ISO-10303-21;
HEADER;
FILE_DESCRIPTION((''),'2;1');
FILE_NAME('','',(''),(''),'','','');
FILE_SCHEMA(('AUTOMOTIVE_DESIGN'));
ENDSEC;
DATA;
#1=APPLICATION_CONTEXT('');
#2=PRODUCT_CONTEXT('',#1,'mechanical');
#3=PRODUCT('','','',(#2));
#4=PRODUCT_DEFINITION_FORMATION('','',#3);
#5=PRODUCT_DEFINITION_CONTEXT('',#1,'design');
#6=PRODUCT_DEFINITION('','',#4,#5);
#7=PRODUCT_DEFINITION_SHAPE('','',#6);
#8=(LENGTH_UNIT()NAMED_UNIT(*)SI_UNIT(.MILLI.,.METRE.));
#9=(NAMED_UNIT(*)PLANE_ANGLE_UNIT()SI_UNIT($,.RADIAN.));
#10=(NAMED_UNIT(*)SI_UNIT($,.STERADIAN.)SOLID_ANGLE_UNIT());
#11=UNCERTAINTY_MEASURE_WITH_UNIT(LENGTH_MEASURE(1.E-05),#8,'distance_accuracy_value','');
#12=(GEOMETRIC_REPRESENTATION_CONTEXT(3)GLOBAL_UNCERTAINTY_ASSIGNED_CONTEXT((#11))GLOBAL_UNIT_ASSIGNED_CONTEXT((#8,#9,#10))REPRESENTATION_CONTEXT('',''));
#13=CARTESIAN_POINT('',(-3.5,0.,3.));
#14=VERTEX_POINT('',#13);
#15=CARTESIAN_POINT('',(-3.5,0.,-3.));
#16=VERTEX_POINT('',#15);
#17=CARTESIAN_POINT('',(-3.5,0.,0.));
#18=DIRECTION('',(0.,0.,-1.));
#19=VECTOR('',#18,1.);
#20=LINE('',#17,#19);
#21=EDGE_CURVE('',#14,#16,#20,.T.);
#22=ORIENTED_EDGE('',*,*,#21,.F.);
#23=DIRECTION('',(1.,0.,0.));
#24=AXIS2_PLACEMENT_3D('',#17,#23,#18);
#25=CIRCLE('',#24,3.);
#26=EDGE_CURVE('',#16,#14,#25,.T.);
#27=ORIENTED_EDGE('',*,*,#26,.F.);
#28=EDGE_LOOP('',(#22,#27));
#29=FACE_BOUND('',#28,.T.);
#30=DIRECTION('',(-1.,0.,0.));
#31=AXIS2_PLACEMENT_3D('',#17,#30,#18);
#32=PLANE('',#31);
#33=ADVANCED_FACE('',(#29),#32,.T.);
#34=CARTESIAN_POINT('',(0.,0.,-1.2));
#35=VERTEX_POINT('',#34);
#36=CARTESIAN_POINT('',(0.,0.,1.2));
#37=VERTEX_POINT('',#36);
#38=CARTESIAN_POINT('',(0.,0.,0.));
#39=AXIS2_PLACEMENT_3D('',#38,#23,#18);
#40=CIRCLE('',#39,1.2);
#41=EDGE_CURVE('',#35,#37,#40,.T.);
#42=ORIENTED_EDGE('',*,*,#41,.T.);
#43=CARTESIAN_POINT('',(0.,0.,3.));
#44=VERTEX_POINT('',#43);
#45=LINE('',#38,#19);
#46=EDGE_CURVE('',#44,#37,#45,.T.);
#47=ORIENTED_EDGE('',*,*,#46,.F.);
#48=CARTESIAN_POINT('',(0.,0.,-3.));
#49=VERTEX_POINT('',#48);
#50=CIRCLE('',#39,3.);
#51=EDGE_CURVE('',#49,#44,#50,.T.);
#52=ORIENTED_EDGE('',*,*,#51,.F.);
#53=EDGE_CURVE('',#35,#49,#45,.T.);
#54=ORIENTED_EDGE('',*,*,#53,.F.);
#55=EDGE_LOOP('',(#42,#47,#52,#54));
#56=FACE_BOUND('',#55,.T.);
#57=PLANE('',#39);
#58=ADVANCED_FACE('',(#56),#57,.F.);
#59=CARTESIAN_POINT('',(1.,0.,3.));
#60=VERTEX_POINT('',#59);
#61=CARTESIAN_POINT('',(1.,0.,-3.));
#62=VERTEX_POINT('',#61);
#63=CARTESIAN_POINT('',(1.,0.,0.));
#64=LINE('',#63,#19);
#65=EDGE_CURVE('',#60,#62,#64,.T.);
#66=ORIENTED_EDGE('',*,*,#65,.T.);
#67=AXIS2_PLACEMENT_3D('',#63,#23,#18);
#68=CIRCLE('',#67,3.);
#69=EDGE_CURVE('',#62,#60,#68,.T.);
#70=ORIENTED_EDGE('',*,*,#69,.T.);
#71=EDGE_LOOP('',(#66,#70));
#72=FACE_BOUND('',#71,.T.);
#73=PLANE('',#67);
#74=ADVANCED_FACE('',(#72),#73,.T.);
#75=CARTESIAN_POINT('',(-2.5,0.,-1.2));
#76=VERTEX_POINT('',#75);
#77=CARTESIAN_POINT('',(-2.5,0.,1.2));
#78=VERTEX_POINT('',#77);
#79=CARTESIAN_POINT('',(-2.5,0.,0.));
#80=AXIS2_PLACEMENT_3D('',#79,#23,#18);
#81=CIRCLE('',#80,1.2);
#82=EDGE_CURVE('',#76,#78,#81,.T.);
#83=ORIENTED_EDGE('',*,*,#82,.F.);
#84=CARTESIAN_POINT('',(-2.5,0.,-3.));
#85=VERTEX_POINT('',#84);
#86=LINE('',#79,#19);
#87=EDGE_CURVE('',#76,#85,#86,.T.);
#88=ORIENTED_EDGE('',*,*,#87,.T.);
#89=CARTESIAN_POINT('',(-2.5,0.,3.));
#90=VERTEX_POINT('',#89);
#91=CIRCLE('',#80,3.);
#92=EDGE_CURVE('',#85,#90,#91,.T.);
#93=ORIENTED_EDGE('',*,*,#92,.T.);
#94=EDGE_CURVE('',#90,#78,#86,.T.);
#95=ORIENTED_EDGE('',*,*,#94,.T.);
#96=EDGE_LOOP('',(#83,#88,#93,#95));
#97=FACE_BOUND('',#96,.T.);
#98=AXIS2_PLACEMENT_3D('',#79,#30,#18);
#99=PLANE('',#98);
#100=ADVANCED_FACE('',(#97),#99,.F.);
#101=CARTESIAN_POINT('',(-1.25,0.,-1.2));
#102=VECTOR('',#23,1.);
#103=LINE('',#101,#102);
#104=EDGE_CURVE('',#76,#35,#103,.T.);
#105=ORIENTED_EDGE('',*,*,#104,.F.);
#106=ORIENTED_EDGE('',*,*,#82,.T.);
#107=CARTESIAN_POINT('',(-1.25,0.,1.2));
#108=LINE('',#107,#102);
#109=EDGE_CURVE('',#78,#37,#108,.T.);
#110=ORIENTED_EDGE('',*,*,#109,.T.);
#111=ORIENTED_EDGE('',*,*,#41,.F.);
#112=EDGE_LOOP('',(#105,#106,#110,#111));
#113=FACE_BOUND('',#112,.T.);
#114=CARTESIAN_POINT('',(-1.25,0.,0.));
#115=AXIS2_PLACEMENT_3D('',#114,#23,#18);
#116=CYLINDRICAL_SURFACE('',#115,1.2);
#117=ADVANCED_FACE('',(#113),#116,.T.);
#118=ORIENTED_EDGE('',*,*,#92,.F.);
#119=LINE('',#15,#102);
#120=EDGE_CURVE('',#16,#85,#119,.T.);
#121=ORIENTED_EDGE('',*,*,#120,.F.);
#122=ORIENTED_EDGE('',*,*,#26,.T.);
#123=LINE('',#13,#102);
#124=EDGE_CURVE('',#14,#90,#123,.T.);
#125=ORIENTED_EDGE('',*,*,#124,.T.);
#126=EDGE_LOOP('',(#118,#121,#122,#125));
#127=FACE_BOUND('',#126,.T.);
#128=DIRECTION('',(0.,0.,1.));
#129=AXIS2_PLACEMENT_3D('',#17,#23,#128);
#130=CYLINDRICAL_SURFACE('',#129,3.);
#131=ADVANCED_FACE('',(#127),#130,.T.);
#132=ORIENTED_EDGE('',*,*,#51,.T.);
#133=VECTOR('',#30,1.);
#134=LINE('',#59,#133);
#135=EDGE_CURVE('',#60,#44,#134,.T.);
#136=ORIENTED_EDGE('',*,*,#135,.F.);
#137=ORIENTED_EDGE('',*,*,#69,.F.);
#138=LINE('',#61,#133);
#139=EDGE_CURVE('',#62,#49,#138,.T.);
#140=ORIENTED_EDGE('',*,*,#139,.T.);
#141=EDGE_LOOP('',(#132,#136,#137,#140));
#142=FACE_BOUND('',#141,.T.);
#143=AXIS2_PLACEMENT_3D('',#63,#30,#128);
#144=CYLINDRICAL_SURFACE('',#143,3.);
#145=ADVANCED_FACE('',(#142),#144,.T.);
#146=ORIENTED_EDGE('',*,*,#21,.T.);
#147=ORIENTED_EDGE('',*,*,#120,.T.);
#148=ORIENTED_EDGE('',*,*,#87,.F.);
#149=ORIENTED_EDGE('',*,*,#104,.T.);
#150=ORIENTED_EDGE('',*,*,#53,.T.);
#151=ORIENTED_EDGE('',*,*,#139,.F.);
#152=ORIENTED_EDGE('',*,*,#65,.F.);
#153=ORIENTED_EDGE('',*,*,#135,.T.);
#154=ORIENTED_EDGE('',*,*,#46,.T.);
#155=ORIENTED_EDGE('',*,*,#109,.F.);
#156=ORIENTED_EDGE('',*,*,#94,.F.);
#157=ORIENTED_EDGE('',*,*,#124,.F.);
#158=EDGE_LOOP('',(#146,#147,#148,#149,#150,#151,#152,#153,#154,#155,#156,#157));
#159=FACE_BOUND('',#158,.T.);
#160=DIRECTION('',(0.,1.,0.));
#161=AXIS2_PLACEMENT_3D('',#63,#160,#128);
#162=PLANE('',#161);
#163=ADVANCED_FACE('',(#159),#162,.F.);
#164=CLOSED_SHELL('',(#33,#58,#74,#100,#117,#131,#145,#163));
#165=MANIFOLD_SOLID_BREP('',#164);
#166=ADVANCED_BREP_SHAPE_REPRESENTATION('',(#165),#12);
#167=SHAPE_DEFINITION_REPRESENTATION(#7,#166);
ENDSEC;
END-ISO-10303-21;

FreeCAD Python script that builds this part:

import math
import FreeCAD as App
import Part
import Sketcher

doc = App.newDocument("Part")
body = doc.addObject("PartDesign::Body", "Body")

# Sketch on YZ plane
sketch1 = doc.addObject("Sketcher::SketchObject", "Sketch")
body.addObject(sketch1)
sketch1.AttachmentSupport = (doc.YZ_Plane, [""])
sketch1.MapMode = "FlatFace"
sketch1.addGeometry([
    Part.ArcOfCircle(Part.Circle(App.Vector(0, 0, 0), App.Vector(0, 0, 1), 3), math.radians(-90), math.radians(90)),
    Part.LineSegment(App.Vector(0, 3, 0), App.Vector(0, -3, 0)),
], False)
sketch1.addConstraint([
    Sketcher.Constraint("Coincident", 0, 1, 1, 2),
    Sketcher.Constraint("Coincident", 1, 1, 0, 2),
    Sketcher.Constraint("Vertical", 1),
    Sketcher.Constraint("Coincident", 0, 3, -1, 1),
    Sketcher.Constraint("PointOnObject", 0, 1, -2),
    Sketcher.Constraint("Radius", 0, 3.0),
])
pad1 = doc.addObject("PartDesign::Pad", "Pad")
body.addObject(pad1)
pad1.Profile = sketch1
pad1.Length = 1

# Sketch on YZ plane
sketch2 = doc.addObject("Sketcher::SketchObject", "Sketch001")
body.addObject(sketch2)
sketch2.AttachmentSupport = (doc.YZ_Plane, [""])
sketch2.MapMode = "FlatFace"
sketch2.addGeometry([
    Part.ArcOfCircle(Part.Circle(App.Vector(0, 0, 0), App.Vector(0, 0, 1), 1.2), math.radians(-90), math.radians(90)),
    Part.LineSegment(App.Vector(0, 1.2, 0), App.Vector(0, -1.2, 0)),
], False)
sketch2.addConstraint([
    Sketcher.Constraint("Coincident", 0, 1, 1, 2),
    Sketcher.Constraint("Coincident", 1, 1, 0, 2),
    Sketcher.Constraint("Vertical", 1),
    Sketcher.Constraint("Coincident", 0, 3, -1, 1),
    Sketcher.Constraint("PointOnObject", 0, 1, -2),
    Sketcher.Constraint("Radius", 0, 1.2),
])
pad2 = doc.addObject("PartDesign::Pad", "Pad001")
body.addObject(pad2)
pad2.Profile = sketch2
pad2.Length = 1.25
pad2.Reversed = True
body2 = doc.addObject("PartDesign::Body", "Body001")
doc.recompute()

body2.BaseFeature = body
doc.recompute()

mirroring = doc.addObject("Part::Mirroring", "Mirroring")
mirroring.Source = body
mirroring.Base = App.Vector(-1.25, 0, 0)
mirroring.Normal = App.Vector(-1, 0, 0)
body3 = doc.addObject("PartDesign::Body", "Body002")
body3.BaseFeature = mirroring
boolean = doc.addObject("PartDesign::Boolean", "Boolean")
body2.addObject(boolean)
boolean.Type = "Fuse"
boolean.addObjects([body3])
doc.recompute()
mirroring.Visibility = False

doc.recompute()
